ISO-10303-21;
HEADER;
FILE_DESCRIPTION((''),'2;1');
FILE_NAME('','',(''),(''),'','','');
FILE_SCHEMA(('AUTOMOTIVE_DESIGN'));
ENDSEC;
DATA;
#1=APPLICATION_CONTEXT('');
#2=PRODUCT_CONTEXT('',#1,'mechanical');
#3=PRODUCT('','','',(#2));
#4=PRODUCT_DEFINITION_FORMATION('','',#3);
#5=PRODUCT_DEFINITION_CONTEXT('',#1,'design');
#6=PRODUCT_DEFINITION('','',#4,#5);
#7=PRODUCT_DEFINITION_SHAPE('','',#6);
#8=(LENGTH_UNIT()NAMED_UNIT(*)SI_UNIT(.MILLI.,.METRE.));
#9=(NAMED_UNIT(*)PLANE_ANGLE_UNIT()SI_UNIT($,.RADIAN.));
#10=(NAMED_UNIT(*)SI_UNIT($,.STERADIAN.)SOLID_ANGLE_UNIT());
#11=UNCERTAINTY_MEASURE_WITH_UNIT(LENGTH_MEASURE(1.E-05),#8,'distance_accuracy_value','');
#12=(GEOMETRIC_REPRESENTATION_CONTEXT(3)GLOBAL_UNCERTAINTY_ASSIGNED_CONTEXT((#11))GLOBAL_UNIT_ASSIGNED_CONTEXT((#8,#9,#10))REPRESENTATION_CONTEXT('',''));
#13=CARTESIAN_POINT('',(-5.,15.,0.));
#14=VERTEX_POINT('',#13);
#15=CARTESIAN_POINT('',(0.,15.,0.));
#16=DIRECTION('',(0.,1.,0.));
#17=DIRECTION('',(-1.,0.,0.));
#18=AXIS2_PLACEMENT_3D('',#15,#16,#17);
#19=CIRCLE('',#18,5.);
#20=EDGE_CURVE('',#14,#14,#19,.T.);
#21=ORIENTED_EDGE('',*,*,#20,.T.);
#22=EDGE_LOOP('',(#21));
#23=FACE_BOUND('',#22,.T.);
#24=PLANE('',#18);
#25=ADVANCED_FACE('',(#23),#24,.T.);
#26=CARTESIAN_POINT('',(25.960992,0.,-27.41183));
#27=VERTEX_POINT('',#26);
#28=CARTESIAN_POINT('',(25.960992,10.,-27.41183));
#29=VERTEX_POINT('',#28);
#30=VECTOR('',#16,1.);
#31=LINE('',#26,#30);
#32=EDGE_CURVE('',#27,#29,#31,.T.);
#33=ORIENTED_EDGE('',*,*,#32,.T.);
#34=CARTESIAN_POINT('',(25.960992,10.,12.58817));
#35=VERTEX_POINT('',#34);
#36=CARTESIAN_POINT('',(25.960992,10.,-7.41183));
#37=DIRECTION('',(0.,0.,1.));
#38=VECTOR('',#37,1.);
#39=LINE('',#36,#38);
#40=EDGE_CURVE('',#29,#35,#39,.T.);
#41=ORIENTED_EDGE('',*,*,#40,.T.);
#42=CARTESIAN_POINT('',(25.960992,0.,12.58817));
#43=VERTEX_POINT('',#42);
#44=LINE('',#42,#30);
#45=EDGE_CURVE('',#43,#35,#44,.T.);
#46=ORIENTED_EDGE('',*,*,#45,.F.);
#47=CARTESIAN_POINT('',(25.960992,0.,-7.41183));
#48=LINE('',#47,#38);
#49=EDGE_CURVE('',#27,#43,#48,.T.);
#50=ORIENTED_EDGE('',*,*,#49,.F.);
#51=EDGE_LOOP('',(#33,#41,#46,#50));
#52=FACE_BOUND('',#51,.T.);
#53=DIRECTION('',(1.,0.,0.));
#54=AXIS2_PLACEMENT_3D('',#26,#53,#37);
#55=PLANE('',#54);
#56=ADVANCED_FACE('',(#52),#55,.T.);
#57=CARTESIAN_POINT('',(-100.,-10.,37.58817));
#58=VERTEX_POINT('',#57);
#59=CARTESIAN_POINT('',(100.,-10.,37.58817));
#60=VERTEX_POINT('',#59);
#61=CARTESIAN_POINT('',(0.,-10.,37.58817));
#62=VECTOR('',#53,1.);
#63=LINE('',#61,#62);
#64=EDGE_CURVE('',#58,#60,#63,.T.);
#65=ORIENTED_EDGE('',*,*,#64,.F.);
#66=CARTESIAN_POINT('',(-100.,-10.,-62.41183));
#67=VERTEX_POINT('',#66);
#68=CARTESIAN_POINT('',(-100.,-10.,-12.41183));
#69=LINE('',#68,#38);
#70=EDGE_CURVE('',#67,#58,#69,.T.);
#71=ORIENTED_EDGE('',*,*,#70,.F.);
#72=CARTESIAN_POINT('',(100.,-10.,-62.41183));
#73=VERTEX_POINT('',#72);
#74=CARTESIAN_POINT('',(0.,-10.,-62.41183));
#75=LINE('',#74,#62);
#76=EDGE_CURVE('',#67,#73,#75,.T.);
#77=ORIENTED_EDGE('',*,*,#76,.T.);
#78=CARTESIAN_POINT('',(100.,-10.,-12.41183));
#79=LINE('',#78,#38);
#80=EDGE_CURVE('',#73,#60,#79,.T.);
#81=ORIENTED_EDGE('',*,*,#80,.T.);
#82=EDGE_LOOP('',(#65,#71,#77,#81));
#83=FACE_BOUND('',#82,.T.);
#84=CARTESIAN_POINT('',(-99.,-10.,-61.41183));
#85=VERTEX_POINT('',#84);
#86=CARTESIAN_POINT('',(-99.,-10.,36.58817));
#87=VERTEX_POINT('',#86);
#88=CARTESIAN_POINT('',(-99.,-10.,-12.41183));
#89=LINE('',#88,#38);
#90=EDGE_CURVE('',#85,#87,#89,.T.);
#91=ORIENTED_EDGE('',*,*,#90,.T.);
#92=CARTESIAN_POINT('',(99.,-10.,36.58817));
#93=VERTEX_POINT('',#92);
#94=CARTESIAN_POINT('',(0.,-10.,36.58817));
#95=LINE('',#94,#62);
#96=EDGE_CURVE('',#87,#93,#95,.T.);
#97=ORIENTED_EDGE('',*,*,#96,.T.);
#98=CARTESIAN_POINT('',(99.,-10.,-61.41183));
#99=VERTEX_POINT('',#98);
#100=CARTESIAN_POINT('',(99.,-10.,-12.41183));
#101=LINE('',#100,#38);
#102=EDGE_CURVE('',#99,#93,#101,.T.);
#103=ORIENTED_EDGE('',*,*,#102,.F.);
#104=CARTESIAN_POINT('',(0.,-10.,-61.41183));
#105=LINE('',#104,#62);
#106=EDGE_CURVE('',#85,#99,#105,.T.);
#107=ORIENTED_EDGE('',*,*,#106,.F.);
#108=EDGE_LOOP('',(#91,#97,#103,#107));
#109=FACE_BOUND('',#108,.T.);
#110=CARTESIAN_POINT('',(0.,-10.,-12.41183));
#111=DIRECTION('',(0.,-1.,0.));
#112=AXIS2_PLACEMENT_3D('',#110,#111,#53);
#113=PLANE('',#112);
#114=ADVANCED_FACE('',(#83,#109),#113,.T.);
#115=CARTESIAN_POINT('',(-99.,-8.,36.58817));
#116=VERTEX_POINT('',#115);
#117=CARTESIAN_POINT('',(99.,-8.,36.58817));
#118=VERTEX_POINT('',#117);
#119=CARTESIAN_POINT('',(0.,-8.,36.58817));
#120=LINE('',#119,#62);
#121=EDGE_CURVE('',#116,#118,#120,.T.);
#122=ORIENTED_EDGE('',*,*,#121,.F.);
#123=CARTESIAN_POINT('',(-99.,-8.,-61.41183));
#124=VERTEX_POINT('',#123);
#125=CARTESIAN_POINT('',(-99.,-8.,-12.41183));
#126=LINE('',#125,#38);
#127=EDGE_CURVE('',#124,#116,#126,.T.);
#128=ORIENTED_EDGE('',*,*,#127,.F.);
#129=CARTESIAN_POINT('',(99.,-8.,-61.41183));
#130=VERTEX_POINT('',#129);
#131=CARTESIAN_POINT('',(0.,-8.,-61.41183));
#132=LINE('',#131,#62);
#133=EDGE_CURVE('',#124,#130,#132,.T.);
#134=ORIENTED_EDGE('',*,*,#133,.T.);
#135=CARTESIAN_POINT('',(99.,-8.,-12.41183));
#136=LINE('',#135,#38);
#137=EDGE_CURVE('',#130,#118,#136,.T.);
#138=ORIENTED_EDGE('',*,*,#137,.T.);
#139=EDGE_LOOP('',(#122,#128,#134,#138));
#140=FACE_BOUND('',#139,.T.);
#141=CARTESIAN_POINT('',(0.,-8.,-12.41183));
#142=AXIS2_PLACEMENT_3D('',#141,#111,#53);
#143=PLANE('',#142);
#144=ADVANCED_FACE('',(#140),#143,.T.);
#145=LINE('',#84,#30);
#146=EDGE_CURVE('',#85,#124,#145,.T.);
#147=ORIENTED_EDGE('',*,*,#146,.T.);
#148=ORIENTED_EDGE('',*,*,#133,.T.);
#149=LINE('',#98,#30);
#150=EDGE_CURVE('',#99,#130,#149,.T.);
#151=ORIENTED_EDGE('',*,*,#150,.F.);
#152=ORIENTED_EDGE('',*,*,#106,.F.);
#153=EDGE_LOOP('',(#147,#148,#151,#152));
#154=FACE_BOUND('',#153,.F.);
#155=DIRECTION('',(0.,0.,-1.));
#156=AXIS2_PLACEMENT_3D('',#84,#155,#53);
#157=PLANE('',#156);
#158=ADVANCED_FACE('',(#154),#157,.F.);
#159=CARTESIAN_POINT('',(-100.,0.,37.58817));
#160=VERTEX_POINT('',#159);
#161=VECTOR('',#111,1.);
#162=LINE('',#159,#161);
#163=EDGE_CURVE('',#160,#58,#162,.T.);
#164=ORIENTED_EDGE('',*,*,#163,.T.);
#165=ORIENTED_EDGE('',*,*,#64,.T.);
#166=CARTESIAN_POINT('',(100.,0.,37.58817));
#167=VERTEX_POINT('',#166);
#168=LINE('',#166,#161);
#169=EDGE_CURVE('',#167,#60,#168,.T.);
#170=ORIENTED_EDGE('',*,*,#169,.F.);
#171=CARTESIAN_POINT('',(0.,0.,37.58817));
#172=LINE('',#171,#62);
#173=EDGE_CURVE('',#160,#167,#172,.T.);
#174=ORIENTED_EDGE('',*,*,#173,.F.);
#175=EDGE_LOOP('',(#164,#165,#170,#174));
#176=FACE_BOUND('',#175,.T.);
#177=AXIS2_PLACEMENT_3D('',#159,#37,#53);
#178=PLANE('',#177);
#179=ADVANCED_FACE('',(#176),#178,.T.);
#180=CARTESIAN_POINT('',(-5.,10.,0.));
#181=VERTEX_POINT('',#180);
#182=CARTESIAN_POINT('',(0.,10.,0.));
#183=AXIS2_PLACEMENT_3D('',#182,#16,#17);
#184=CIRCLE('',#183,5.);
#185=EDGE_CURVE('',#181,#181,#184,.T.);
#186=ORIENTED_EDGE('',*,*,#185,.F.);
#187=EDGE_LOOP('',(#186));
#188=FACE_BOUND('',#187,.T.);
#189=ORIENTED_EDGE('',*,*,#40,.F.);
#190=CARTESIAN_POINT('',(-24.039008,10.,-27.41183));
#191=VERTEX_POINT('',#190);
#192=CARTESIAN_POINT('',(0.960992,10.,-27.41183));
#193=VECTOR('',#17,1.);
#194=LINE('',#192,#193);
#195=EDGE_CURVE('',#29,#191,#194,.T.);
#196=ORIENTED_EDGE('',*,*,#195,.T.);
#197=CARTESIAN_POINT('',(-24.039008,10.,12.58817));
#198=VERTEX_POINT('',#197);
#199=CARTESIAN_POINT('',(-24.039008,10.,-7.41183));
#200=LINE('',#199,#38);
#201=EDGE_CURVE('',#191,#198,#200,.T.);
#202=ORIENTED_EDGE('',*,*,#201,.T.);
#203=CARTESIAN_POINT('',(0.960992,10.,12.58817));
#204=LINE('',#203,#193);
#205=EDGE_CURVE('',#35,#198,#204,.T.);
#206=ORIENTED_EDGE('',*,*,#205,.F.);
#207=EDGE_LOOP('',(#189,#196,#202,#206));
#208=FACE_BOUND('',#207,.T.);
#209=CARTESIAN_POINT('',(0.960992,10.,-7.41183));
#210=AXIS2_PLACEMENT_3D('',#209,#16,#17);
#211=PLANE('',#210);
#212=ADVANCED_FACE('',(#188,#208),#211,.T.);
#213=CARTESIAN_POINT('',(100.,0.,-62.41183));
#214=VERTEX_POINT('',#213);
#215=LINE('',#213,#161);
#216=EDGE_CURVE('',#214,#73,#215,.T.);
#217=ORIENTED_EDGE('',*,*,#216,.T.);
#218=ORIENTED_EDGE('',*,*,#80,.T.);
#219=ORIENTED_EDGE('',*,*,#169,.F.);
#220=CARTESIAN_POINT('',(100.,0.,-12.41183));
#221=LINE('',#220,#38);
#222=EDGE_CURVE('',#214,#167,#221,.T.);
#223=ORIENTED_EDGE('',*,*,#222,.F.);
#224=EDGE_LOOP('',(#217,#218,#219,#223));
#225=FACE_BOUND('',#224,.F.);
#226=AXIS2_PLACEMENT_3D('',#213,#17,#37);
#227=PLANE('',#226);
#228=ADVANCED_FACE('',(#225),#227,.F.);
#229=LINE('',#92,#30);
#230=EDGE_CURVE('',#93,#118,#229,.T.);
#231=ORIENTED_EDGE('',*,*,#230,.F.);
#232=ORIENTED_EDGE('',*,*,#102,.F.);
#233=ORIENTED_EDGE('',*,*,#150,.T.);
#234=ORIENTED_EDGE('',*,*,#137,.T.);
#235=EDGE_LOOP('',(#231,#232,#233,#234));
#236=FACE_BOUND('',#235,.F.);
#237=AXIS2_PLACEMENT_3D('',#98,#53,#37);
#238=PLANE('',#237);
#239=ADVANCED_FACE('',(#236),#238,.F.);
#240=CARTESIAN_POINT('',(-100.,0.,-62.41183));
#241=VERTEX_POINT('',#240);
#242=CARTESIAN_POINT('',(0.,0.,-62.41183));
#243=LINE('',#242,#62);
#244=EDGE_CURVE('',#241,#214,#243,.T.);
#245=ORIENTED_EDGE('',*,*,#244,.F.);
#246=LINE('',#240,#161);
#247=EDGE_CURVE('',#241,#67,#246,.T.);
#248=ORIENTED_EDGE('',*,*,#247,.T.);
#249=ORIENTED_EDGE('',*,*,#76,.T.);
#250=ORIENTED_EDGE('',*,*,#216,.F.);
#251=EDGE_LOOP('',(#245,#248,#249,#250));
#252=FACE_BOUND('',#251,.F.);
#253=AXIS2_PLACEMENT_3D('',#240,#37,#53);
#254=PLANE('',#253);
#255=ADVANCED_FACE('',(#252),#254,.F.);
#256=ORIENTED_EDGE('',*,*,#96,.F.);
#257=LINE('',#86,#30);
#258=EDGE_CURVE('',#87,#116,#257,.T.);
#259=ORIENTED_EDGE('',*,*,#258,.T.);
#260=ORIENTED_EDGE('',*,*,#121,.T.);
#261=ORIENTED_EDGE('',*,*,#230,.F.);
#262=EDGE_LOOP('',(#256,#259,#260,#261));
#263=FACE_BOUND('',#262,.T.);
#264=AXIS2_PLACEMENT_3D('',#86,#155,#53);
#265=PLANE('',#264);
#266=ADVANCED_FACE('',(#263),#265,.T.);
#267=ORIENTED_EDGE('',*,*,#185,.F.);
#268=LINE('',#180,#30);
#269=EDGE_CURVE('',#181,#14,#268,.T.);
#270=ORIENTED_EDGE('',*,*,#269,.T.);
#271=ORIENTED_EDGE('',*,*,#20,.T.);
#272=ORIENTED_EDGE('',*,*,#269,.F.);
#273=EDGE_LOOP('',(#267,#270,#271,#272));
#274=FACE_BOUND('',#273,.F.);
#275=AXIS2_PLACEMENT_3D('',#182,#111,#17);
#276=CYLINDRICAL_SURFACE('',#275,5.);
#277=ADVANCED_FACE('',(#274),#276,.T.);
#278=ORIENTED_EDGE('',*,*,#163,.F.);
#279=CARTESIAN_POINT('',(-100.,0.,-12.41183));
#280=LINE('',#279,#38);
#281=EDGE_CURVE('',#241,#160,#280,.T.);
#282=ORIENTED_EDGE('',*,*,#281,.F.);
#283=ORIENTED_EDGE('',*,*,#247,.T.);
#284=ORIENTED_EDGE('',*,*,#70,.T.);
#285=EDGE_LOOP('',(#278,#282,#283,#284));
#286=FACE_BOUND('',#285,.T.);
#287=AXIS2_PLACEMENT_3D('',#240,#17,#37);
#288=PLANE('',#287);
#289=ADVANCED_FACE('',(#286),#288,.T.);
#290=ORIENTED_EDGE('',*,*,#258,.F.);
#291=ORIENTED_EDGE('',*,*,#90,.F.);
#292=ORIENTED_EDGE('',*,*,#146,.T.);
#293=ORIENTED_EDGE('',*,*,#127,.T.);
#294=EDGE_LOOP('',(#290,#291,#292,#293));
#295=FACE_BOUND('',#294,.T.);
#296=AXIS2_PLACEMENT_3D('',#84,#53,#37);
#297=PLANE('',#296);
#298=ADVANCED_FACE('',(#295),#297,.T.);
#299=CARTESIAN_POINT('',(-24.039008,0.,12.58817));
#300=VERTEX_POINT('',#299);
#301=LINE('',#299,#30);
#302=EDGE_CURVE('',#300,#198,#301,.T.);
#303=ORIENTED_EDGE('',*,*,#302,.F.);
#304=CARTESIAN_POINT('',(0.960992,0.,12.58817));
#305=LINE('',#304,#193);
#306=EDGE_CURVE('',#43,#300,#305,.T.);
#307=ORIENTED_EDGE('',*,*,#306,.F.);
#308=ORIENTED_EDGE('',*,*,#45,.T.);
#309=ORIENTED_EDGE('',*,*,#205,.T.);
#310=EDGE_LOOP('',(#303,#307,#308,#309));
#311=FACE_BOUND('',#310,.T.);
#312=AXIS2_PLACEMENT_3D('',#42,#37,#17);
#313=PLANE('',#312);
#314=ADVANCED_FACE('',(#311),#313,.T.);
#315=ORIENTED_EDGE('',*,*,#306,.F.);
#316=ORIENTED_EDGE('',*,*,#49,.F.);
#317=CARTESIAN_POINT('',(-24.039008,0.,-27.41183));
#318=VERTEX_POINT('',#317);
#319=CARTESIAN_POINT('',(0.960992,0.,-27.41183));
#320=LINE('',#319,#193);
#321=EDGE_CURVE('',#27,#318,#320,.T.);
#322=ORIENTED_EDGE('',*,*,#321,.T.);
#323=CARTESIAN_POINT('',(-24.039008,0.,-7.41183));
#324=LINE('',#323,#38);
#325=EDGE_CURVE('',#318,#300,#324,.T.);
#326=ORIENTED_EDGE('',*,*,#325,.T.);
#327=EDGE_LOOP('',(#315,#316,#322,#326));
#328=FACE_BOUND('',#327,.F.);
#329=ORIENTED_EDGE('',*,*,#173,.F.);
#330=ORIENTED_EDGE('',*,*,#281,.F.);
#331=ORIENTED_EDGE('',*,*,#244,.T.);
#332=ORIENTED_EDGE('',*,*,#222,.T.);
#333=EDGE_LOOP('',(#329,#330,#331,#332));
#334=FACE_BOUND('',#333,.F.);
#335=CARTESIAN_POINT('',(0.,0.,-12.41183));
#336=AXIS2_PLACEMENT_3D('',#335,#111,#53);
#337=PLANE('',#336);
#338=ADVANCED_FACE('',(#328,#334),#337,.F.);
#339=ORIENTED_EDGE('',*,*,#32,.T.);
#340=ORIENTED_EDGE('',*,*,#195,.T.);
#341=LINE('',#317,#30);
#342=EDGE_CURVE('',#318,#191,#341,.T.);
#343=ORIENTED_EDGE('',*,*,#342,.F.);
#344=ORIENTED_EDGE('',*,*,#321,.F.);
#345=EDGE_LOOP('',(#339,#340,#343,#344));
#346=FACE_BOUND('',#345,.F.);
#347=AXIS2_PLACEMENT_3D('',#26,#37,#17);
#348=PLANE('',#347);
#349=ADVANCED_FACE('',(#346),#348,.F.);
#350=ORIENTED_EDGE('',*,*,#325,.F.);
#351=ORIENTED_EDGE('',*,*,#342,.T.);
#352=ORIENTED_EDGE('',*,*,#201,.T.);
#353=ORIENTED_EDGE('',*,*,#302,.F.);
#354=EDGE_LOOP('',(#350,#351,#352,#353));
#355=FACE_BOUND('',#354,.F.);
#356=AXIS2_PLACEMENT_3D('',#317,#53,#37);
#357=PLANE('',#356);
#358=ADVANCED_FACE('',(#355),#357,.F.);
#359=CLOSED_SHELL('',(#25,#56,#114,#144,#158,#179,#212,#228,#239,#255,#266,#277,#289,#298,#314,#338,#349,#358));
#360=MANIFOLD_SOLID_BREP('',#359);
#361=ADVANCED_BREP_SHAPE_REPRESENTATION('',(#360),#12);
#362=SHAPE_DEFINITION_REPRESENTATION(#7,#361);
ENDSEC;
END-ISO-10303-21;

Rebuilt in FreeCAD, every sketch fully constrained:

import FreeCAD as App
import Part
import Sketcher
from FreeCAD import Vector
Q = App.Units.Quantity


def add_polygon(sketch, points):
    """Adds a closed chain of lines whose ends are joined by coincident constraints."""
    first, n = sketch.GeometryCount, len(points)
    for a, b in zip(points, points[1:] + points[:1]):
        sketch.addGeometry(Part.LineSegment(App.Vector(*a, 0), App.Vector(*b, 0)), False)
    for i in range(n):
        sketch.addConstraint(Sketcher.Constraint("Coincident", first + i, 2, first + (i + 1) % n, 1))

doc = App.newDocument("Part")
params = doc.addObject("Spreadsheet::Sheet", "Params")
for row, (alias, value) in enumerate([
    ("sketch1_width", "200 mm"),
    ("sketch1_height", "100 mm"),
    ("pad1_length", "10 mm"),
    ("sketch2_width", "198 mm"),
    ("sketch2_height", "98 mm"),
    ("pocket1_length", "2 mm"),
    ("sketch3_width", "50 mm"),
    ("sketch3_height", "40 mm"),
    ("pad2_length", "10 mm"),
    ("sketch4_diameter", "10 mm"),
    ("pad3_length", "5 mm"),
], start=1):
    params.set(f"A{row}", alias)
    params.set(f"B{row}", "=" + value)
    params.setAlias(f"B{row}", alias)

body = doc.addObject("PartDesign::Body", "Body")

# Sketch on XZ plane
sketch1 = doc.addObject("Sketcher::SketchObject", "Sketch")
body.addObject(sketch1)
sketch1.AttachmentSupport = (doc.XZ_Plane, [""])
sketch1.MapMode = "FlatFace"
add_polygon(sketch1, [(-100, 37.58817), (-100, -62.41183), (100, -62.41183), (100, 37.58817)])  # lines 0-3
sketch1.addConstraint(Sketcher.Constraint("Vertical", 0))
sketch1.addConstraint(Sketcher.Constraint("Horizontal", 1))
sketch1.addConstraint(Sketcher.Constraint("Vertical", 2))
sketch1.addConstraint(Sketcher.Constraint("Horizontal", 3))
sketch1.addConstraint(Sketcher.Constraint("DistanceX", 1, 1, 1, 2, Q("200 mm")))
sketch1.addConstraint(Sketcher.Constraint("DistanceY", 0, 2, 0, 1, Q("100 mm")))
sketch1.addConstraint(Sketcher.Constraint("DistanceX", 0, 2, -1, 1, Q("100 mm")))
sketch1.addConstraint(Sketcher.Constraint("DistanceY", 0, 2, -1, 1, Q("62.41183 mm")))
sketch1.setExpression("Constraints[8]", "Params.sketch1_width")
sketch1.setExpression("Constraints[9]", "Params.sketch1_height")
pad1 = doc.addObject("PartDesign::Pad", "Pad")
body.addObject(pad1)
pad1.Profile = sketch1
pad1.setExpression("Length", "Params.pad1_length")

# Sketch on XZ plane
sketch2 = doc.addObject("Sketcher::SketchObject", "Sketch001")
body.addObject(sketch2)
sketch2.AttachmentSupport = (doc.XZ_Plane, [""])
sketch2.MapMode = "FlatFace"
sketch2.AttachmentOffset = App.Placement(Vector(0, 0, 10), App.Rotation())
add_polygon(sketch2, [(-99, 36.58817), (-99, -61.41183), (99, -61.41183), (99, 36.58817)])  # lines 0-3
sketch2.addConstraint(Sketcher.Constraint("Vertical", 0))
sketch2.addConstraint(Sketcher.Constraint("Horizontal", 1))
sketch2.addConstraint(Sketcher.Constraint("Vertical", 2))
sketch2.addConstraint(Sketcher.Constraint("Horizontal", 3))
sketch2.addConstraint(Sketcher.Constraint("DistanceX", 1, 1, 1, 2, Q("198 mm")))
sketch2.addConstraint(Sketcher.Constraint("DistanceY", 0, 2, 0, 1, Q("98 mm")))
sketch2.addConstraint(Sketcher.Constraint("DistanceX", 0, 2, -1, 1, Q("99 mm")))
sketch2.addConstraint(Sketcher.Constraint("DistanceY", 0, 2, -1, 1, Q("61.41183 mm")))
sketch2.setExpression("Constraints[8]", "Params.sketch2_width")
sketch2.setExpression("Constraints[9]", "Params.sketch2_height")
pocket1 = doc.addObject("PartDesign::Pocket", "Pocket")
body.addObject(pocket1)
pocket1.Profile = sketch2
pocket1.setExpression("Length", "Params.pocket1_length")

# Sketch on XZ plane
sketch3 = doc.addObject("Sketcher::SketchObject", "Sketch002")
body.addObject(sketch3)
sketch3.AttachmentSupport = (doc.XZ_Plane, [""])
sketch3.MapMode = "FlatFace"
add_polygon(sketch3, [(25.960992, 12.58817), (25.960992, -27.41183), (-24.039008, -27.41183), (-24.039008, 12.58817)])  # lines 0-3
sketch3.addConstraint(Sketcher.Constraint("Vertical", 0))
sketch3.addConstraint(Sketcher.Constraint("Horizontal", 1))
sketch3.addConstraint(Sketcher.Constraint("Vertical", 2))
sketch3.addConstraint(Sketcher.Constraint("Horizontal", 3))
sketch3.addConstraint(Sketcher.Constraint("DistanceX", 1, 2, 1, 1, Q("50 mm")))
sketch3.addConstraint(Sketcher.Constraint("DistanceY", 0, 2, 0, 1, Q("40 mm")))
sketch3.addConstraint(Sketcher.Constraint("DistanceY", 0, 2, -1, 1, Q("27.41183 mm")))
sketch3.addConstraint(Sketcher.Constraint("DistanceX", -1, 1, 0, 2, Q("25.960992 mm")))
sketch3.setExpression("Constraints[8]", "Params.sketch3_width")
sketch3.setExpression("Constraints[9]", "Params.sketch3_height")
pad2 = doc.addObject("PartDesign::Pad", "Pad001")
body.addObject(pad2)
pad2.Profile = sketch3
pad2.setExpression("Length", "Params.pad2_length")
pad2.Reversed = True

# Sketch on XZ plane
sketch4 = doc.addObject("Sketcher::SketchObject", "Sketch003")
body.addObject(sketch4)
sketch4.AttachmentSupport = (doc.XZ_Plane, [""])
sketch4.MapMode = "FlatFace"
sketch4.AttachmentOffset = App.Placement(Vector(0, 0, -10), App.Rotation())
sketch4.addGeometry(Part.Circle(Vector(0, 0, 0), Vector(0, 0, 1), 5), False)
sketch4.addConstraint(Sketcher.Constraint("Coincident", 0, 3, -1, 1))
sketch4.addConstraint(Sketcher.Constraint("Diameter", 0, Q("10 mm")))
sketch4.setExpression("Constraints[1]", "Params.sketch4_diameter")
pad3 = doc.addObject("PartDesign::Pad", "Pad002")
body.addObject(pad3)
pad3.Profile = sketch4
pad3.setExpression("Length", "Params.pad3_length")
pad3.Reversed = True

doc.recompute()
